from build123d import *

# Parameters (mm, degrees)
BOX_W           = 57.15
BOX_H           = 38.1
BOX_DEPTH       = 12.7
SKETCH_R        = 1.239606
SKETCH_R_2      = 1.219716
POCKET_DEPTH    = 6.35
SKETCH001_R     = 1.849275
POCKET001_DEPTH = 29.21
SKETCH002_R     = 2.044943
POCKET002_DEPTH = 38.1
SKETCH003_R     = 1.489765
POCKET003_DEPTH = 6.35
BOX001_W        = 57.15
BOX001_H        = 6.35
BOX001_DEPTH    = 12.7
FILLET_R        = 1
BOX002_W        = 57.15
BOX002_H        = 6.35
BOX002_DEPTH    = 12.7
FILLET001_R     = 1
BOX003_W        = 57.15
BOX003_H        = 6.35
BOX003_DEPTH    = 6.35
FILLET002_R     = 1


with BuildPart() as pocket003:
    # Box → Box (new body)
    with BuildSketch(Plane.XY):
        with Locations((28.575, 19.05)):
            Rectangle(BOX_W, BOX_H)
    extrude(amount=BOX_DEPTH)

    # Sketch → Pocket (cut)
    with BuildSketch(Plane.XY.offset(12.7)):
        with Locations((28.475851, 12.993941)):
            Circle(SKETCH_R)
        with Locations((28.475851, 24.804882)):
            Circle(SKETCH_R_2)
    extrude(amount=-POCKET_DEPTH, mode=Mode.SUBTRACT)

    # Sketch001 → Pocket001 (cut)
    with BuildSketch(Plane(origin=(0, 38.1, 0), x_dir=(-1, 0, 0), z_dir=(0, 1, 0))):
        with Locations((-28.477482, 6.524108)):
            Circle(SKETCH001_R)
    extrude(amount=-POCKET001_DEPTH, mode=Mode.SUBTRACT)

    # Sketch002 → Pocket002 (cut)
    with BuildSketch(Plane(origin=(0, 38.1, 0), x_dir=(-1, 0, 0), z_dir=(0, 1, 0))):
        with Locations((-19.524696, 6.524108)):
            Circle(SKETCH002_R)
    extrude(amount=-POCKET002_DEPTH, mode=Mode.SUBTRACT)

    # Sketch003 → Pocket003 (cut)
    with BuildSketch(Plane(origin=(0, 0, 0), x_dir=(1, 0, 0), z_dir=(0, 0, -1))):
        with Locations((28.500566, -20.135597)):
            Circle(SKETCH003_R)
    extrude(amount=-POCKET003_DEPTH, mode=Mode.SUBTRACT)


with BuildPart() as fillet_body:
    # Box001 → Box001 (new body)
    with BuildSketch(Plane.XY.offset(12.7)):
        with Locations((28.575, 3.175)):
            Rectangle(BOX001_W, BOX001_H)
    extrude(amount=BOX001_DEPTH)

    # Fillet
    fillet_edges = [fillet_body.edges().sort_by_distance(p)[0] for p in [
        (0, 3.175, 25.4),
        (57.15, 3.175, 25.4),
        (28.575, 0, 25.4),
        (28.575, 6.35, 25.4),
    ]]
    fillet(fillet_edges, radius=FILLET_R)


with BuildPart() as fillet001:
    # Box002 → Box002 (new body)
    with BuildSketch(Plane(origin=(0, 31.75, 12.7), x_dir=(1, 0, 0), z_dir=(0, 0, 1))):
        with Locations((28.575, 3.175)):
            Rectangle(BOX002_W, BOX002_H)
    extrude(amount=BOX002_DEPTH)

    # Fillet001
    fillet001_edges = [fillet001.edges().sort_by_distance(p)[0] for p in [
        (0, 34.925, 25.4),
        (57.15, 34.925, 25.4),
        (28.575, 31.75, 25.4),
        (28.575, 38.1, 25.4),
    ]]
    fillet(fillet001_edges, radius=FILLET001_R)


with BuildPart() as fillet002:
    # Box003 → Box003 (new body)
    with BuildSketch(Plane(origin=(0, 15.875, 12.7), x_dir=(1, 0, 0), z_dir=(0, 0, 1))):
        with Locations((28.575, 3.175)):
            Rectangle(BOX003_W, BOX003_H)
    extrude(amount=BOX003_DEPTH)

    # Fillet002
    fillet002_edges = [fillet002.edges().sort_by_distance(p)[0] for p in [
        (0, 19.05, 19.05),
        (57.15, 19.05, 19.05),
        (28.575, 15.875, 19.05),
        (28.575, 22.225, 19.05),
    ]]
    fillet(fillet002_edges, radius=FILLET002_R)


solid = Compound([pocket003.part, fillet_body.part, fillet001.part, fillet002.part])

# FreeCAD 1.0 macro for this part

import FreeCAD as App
import Part
import Sketcher
from FreeCAD import Vector
Q = App.Units.Quantity


def edges_at(feature, points):
    """Names of the edges that pass closest to the given points."""
    edges = feature.Shape.Edges
    near = lambda p: min(range(len(edges)), key=lambda i: edges[i].distToShape(Part.Vertex(*p))[0])
    return sorted({f"Edge{near(p) + 1}" for p in points})


def add_polygon(sketch, points):
    """Adds a closed chain of lines whose ends are joined by coincident constraints."""
    first, n = sketch.GeometryCount, len(points)
    for a, b in zip(points, points[1:] + points[:1]):
        sketch.addGeometry(Part.LineSegment(App.Vector(*a, 0), App.Vector(*b, 0)), False)
    for i in range(n):
        sketch.addConstraint(Sketcher.Constraint("Coincident", first + i, 2, first + (i + 1) % n, 1))

doc = App.newDocument("Part")
params = doc.addObject("Spreadsheet::Sheet", "Params")
for row, (alias, value) in enumerate([
    ("sketch1_height", "1.5 in"),
    ("sketch1_width", "2.25 in"),
    ("pad1_length", "0.5 in"),
    ("pocket1_length", "0.25 in"),
    ("pocket2_length", "1.15 in"),
    ("pocket3_length", "1.5 in"),
    ("pocket4_length", "0.25 in"),
    ("sketch6_width", "2.25 in"),
    ("sketch6_height", "0.25 in"),
    ("pad2_length", "0.5 in"),
    ("fillet_radius", "1 mm"),
    ("sketch7_width", "2.25 in"),
    ("sketch7_height", "0.25 in"),
    ("pad3_length", "0.5 in"),
    ("fillet2_radius", "1 mm"),
    ("sketch8_width", "2.25 in"),
    ("sketch8_height", "0.25 in"),
    ("pad4_length", "0.25 in"),
    ("fillet3_radius", "1 mm"),
], start=1):
    params.set(f"A{row}", alias)
    params.set(f"B{row}", "=" + value)
    params.setAlias(f"B{row}", alias)

body = doc.addObject("PartDesign::Body", "Body")

sketch1 = body.newObject("Sketcher::SketchObject", "Sketch")
sketch1.AttachmentSupport = (doc.getObject("XY_Plane"), [""])
sketch1.MapMode = "FlatFace"
add_polygon(sketch1, [(0, 38), (0, 0), (57, 0), (57, 38)])
sketch1.addConstraint(Sketcher.Constraint("Vertical", 0))
sketch1.addConstraint(Sketcher.Constraint("Horizontal", 1))
sketch1.addConstraint(Sketcher.Constraint("Vertical", 2))
sketch1.addConstraint(Sketcher.Constraint("Horizontal", 3))
sketch1.addConstraint(Sketcher.Constraint("Coincident", 0, 2, -1, 1))
sketch1.addConstraint(Sketcher.Constraint("DistanceY", 0, 2, 0, 1, Q("1.5 in")))
sketch1.addConstraint(Sketcher.Constraint("DistanceX", 1, 1, 1, 2, Q("2.25 in")))
sketch1.setExpression("Constraints[9]", "Params.sketch1_height")
sketch1.setExpression("Constraints[10]", "Params.sketch1_width")
pad1 = body.newObject("PartDesign::Pad", "Pad")
pad1.Profile = sketch1
pad1.setExpression("Length", "Params.pad1_length")

sketch2 = body.newObject("Sketcher::SketchObject", "Sketch001")
sketch2.AttachmentSupport = (doc.getObject("XY_Plane"), [""])
sketch2.MapMode = "FlatFace"
sketch2.AttachmentOffset = App.Placement(Vector(0, 0, 0.5 * 25.4), App.Rotation())
sketch2.addGeometry(Part.Circle(Vector(28.5, 13, 0), Vector(0, 0, 1), 1.2), False)
sketch2.addGeometry(Part.Circle(Vector(28.5, 24.8, 0), Vector(0, 0, 1), 1.2), False)
sketch2.addConstraint(Sketcher.Constraint("Vertical", 0, 3, 1, 3))
sketch2.addConstraint(Sketcher.Constraint("Diameter", 0, Q("2.479212 mm")))
sketch2.addConstraint(Sketcher.Constraint("Diameter", 1, Q("2.439432 mm")))
sketch2.addConstraint(Sketcher.Constraint("DistanceX", -1, 1, 0, 3, Q("28.475851 mm")))
sketch2.addConstraint(Sketcher.Constraint("DistanceY", -1, 1, 0, 3, Q("12.993941 mm")))
sketch2.addConstraint(Sketcher.Constraint("DistanceY", -1, 1, 1, 3, Q("24.804882 mm")))
pocket1 = body.newObject("PartDesign::Pocket", "Pocket")
pocket1.Profile = sketch2
pocket1.setExpression("Length", "Params.pocket1_length")

sketch3 = body.newObject("Sketcher::SketchObject", "Sketch002")
sketch3.AttachmentSupport = (doc.getObject("XZ_Plane"), [""])
sketch3.MapMode = "FlatFace"
sketch3.AttachmentOffset = App.Placement(Vector(0, 0, -1.5 * 25.4), App.Rotation())
sketch3.addGeometry(Part.Circle(Vector(28.5, 6.5, 0), Vector(0, 0, 1), 1.8), False)
sketch3.addConstraint(Sketcher.Constraint("Diameter", 0, Q("3.69855 mm")))
sketch3.addConstraint(Sketcher.Constraint("DistanceX", -1, 1, 0, 3, Q("28.477482 mm")))
sketch3.addConstraint(Sketcher.Constraint("DistanceY", -1, 1, 0, 3, Q("6.524108 mm")))
pocket2 = body.newObject("PartDesign::Pocket", "Pocket001")
pocket2.Profile = sketch3
pocket2.setExpression("Length", "Params.pocket2_length")
pocket2.Reversed = True

sketch4 = body.newObject("Sketcher::SketchObject", "Sketch003")
sketch4.AttachmentSupport = (doc.getObject("XZ_Plane"), [""])
sketch4.MapMode = "FlatFace"
sketch4.AttachmentOffset = App.Placement(Vector(0, 0, -1.5 * 25.4), App.Rotation())
sketch4.addGeometry(Part.Circle(Vector(19.5, 6.5, 0), Vector(0, 0, 1), 2), False)
sketch4.addConstraint(Sketcher.Constraint("Diameter", 0, Q("4.089886 mm")))
sketch4.addConstraint(Sketcher.Constraint("DistanceX", -1, 1, 0, 3, Q("19.524696 mm")))
sketch4.addConstraint(Sketcher.Constraint("DistanceY", -1, 1, 0, 3, Q("6.524108 mm")))
pocket3 = body.newObject("PartDesign::Pocket", "Pocket002")
pocket3.Profile = sketch4
pocket3.setExpression("Length", "Params.pocket3_length")
pocket3.Reversed = True

sketch5 = body.newObject("Sketcher::SketchObject", "Sketch004")
sketch5.AttachmentSupport = (doc.getObject("XY_Plane"), [""])
sketch5.MapMode = "FlatFace"
sketch5.addGeometry(Part.Circle(Vector(28.5, 20.1, 0), Vector(0, 0, 1), 1.5), False)
sketch5.addConstraint(Sketcher.Constraint("Diameter", 0, Q("2.97953 mm")))
sketch5.addConstraint(Sketcher.Constraint("DistanceX", -1, 1, 0, 3, Q("28.500566 mm")))
sketch5.addConstraint(Sketcher.Constraint("DistanceY", -1, 1, 0, 3, Q("20.135597 mm")))
pocket4 = body.newObject("PartDesign::Pocket", "Pocket003")
pocket4.Profile = sketch5
pocket4.setExpression("Length", "Params.pocket4_length")
pocket4.Reversed = True
body2 = doc.addObject("PartDesign::Body", "Body001")

sketch6 = body2.newObject("Sketcher::SketchObject", "Sketch005")
sketch6.AttachmentSupport = (doc.getObject("XY_Plane001"), [""])
sketch6.MapMode = "FlatFace"
sketch6.AttachmentOffset = App.Placement(Vector(0, 0, 0.5 * 25.4), App.Rotation())
add_polygon(sketch6, [(0, 6), (0, 0), (57, 0), (57, 6)])
sketch6.addConstraint(Sketcher.Constraint("Vertical", 0))
sketch6.addConstraint(Sketcher.Constraint("Horizontal", 1))
sketch6.addConstraint(Sketcher.Constraint("Vertical", 2))
sketch6.addConstraint(Sketcher.Constraint("Horizontal", 3))
sketch6.addConstraint(Sketcher.Constraint("Coincident", 0, 2, -1, 1))
sketch6.addConstraint(Sketcher.Constraint("DistanceX", 1, 1, 1, 2, Q("2.25 in")))
sketch6.addConstraint(Sketcher.Constraint("DistanceY", 0, 2, 0, 1, Q("0.25 in")))
sketch6.setExpression("Constraints[9]", "Params.sketch6_width")
sketch6.setExpression("Constraints[10]", "Params.sketch6_height")
pad2 = body2.newObject("PartDesign::Pad", "Pad001")
pad2.Profile = sketch6
pad2.setExpression("Length", "Params.pad2_length")
doc.recompute()

fillet = body2.newObject("PartDesign::Fillet", "Fillet")
fillet.Base = (pad2, edges_at(pad2, [
    (0, 3.175, 25.4),
    (57.15, 3.175, 25.4),
    (28.575, 0, 25.4),
    (28.575, 6.35, 25.4),
]))
fillet.setExpression("Radius", "Params.fillet_radius")
body3 = doc.addObject("PartDesign::Body", "Body002")

sketch7 = body3.newObject("Sketcher::SketchObject", "Sketch006")
sketch7.AttachmentSupport = (doc.getObject("XY_Plane002"), [""])
sketch7.MapMode = "FlatFace"
sketch7.AttachmentOffset = App.Placement(Vector(0, 0, 0.5 * 25.4), App.Rotation())
add_polygon(sketch7, [(0, 38), (0, 32), (57, 32), (57, 38)])
sketch7.addConstraint(Sketcher.Constraint("Vertical", 0))
sketch7.addConstraint(Sketcher.Constraint("Horizontal", 1))
sketch7.addConstraint(Sketcher.Constraint("Vertical", 2))
sketch7.addConstraint(Sketcher.Constraint("Horizontal", 3))
sketch7.addConstraint(Sketcher.Constraint("PointOnObject", 0, 2, -2))
sketch7.addConstraint(Sketcher.Constraint("DistanceX", 1, 1, 1, 2, Q("2.25 in")))
sketch7.addConstraint(Sketcher.Constraint("DistanceY", 0, 2, 0, 1, Q("0.25 in")))
sketch7.addConstraint(Sketcher.Constraint("DistanceY", -1, 1, 2, 2, Q("1.5 in")))
sketch7.setExpression("Constraints[9]", "Params.sketch7_width")
sketch7.setExpression("Constraints[10]", "Params.sketch7_height")
pad3 = body3.newObject("PartDesign::Pad", "Pad002")
pad3.Profile = sketch7
pad3.setExpression("Length", "Params.pad3_length")
doc.recompute()

fillet2 = body3.newObject("PartDesign::Fillet", "Fillet001")
fillet2.Base = (pad3, edges_at(pad3, [
    (0, 34.925, 25.4),
    (57.15, 34.925, 25.4),
    (28.575, 31.75, 25.4),
    (28.575, 38.1, 25.4),
]))
fillet2.setExpression("Radius", "Params.fillet2_radius")
body4 = doc.addObject("PartDesign::Body", "Body003")

sketch8 = body4.newObject("Sketcher::SketchObject", "Sketch007")
sketch8.AttachmentSupport = (doc.getObject("XY_Plane003"), [""])
sketch8.MapMode = "FlatFace"
sketch8.AttachmentOffset = App.Placement(Vector(0, 0, 0.5 * 25.4), App.Rotation())
add_polygon(sketch8, [(0, 22), (0, 16), (57, 16), (57, 22)])
sketch8.addConstraint(Sketcher.Constraint("Vertical", 0))
sketch8.addConstraint(Sketcher.Constraint("Horizontal", 1))
sketch8.addConstraint(Sketcher.Constraint("Vertical", 2))
sketch8.addConstraint(Sketcher.Constraint("Horizontal", 3))
sketch8.addConstraint(Sketcher.Constraint("PointOnObject", 0, 2, -2))
sketch8.addConstraint(Sketcher.Constraint("DistanceX", 1, 1, 1, 2, Q("2.25 in")))
sketch8.addConstraint(Sketcher.Constraint("DistanceY", 0, 2, 0, 1, Q("0.25 in")))
sketch8.addConstraint(Sketcher.Constraint("DistanceY", -1, 1, 0, 2, Q("0.625 in")))
sketch8.setExpression("Constraints[9]", "Params.sketch8_width")
sketch8.setExpression("Constraints[10]", "Params.sketch8_height")
pad4 = body4.newObject("PartDesign::Pad", "Pad003")
pad4.Profile = sketch8
pad4.setExpression("Length", "Params.pad4_length")
doc.recompute()

fillet3 = body4.newObject("PartDesign::Fillet", "Fillet002")
fillet3.Base = (pad4, edges_at(pad4, [
    (0, 19.05, 19.05),
    (57.15, 19.05, 19.05),
    (28.575, 15.875, 19.05),
    (28.575, 22.225, 19.05),
]))
fillet3.setExpression("Radius", "Params.fillet3_radius")

doc.recompute()
